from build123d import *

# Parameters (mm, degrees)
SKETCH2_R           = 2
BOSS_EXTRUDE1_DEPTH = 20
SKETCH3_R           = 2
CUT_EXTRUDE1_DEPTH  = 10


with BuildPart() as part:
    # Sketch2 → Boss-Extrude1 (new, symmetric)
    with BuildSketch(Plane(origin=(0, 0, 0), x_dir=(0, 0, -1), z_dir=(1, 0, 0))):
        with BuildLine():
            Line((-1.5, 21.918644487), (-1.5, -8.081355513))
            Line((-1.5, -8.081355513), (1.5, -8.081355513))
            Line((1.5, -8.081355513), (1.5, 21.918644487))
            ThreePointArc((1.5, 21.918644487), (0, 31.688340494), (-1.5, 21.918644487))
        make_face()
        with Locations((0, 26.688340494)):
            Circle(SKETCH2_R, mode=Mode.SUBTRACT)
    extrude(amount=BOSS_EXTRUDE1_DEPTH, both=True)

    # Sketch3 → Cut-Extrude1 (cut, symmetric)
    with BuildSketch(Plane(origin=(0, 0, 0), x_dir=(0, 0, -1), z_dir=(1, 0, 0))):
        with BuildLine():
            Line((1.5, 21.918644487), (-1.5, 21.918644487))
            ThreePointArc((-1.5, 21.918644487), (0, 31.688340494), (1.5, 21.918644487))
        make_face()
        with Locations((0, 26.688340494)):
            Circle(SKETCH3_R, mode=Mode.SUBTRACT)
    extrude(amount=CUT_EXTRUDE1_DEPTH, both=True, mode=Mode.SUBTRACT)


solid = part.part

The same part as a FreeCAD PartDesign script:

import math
import FreeCAD as App
import Part
import Sketcher
from FreeCAD import Vector

doc = App.newDocument("Part")
body = doc.addObject("PartDesign::Body", "Body")

# Sketch on YZ plane
sketch1 = doc.addObject("Sketcher::SketchObject", "Sketch")
body.addObject(sketch1)
sketch1.AttachmentSupport = (doc.YZ_Plane, [""])
sketch1.MapMode = "FlatFace"
sketch1.addGeometry([
    Part.LineSegment(Vector(21.9, 1.5, 0), Vector(-8.1, 1.5, 0)),  # 0
    Part.LineSegment(Vector(-8.1, 1.5, 0), Vector(-8.1, -1.5, 0)),  # 1
    Part.LineSegment(Vector(-8.1, -1.5, 0), Vector(21.9, -1.5, 0)),  # 2
    Part.ArcOfCircle(Part.Circle(Vector(26.7, 0, 0), Vector(0, 0, 1), 5), math.radians(-163), math.radians(163)),  # 3
    Part.Circle(Vector(26.7, 0, 0), Vector(0, 0, 1), 2),  # 4
], False)
sketch1.addConstraint([
    Sketcher.Constraint("Coincident", 0, 2, 1, 1),
    Sketcher.Constraint("Coincident", 1, 2, 2, 1),
    Sketcher.Constraint("Coincident", 2, 2, 3, 1),
    Sketcher.Constraint("Coincident", 3, 2, 0, 1),
    Sketcher.Constraint("Horizontal", 0),
    Sketcher.Constraint("Vertical", 1),
    Sketcher.Constraint("Horizontal", 2),
    Sketcher.Constraint("Coincident", 4, 3, 3, 3),
    Sketcher.Constraint("Symmetric", 2, 2, 3, 2, -1),
    Sketcher.Constraint("Diameter", 4, 4.0),
    Sketcher.Constraint("Radius", 3, 5.0),
    Sketcher.Constraint("DistanceX", 0, 2, 0, 1, 30.0),
    Sketcher.Constraint("DistanceY", 1, 2, 1, 1, 3.0),
    Sketcher.Constraint("DistanceX", -1, 1, 3, 3, 26.68834),
])
pad1 = doc.addObject("PartDesign::Pad", "Pad")
body.addObject(pad1)
pad1.Profile = sketch1
pad1.Length = 40
pad1.Midplane = True

# Sketch on YZ plane
sketch2 = doc.addObject("Sketcher::SketchObject", "Sketch001")
body.addObject(sketch2)
sketch2.AttachmentSupport = (doc.YZ_Plane, [""])
sketch2.MapMode = "FlatFace"
sketch2.addGeometry([
    Part.LineSegment(Vector(21.9, 1.5, 0), Vector(21.9, -1.5, 0)),
    Part.ArcOfCircle(Part.Circle(Vector(26.7, 0, 0), Vector(0, 0, 1), 5), math.radians(-163), math.radians(163)),
    Part.Circle(Vector(26.7, 0, 0), Vector(0, 0, 1), 2),
], False)
sketch2.addConstraint([
    Sketcher.Constraint("Coincident", 0, 1, 1, 2),
    Sketcher.Constraint("Coincident", 1, 1, 0, 2),
    Sketcher.Constraint("Vertical", 0),
    Sketcher.Constraint("Coincident", 2, 3, 1, 3),
    Sketcher.Constraint("PointOnObject", 1, 3, -1),
    Sketcher.Constraint("Diameter", 2, 4.0),
    Sketcher.Constraint("Radius", 1, 5.0),
    Sketcher.Constraint("DistanceY", 0, 2, 0, 1, 3.0),
    Sketcher.Constraint("DistanceX", -1, 1, 1, 3, 26.68834),
])
pocket1 = doc.addObject("PartDesign::Pocket", "Pocket")
body.addObject(pocket1)
pocket1.Profile = sketch2
pocket1.Length = 20
pocket1.Midplane = True

doc.recompute()
